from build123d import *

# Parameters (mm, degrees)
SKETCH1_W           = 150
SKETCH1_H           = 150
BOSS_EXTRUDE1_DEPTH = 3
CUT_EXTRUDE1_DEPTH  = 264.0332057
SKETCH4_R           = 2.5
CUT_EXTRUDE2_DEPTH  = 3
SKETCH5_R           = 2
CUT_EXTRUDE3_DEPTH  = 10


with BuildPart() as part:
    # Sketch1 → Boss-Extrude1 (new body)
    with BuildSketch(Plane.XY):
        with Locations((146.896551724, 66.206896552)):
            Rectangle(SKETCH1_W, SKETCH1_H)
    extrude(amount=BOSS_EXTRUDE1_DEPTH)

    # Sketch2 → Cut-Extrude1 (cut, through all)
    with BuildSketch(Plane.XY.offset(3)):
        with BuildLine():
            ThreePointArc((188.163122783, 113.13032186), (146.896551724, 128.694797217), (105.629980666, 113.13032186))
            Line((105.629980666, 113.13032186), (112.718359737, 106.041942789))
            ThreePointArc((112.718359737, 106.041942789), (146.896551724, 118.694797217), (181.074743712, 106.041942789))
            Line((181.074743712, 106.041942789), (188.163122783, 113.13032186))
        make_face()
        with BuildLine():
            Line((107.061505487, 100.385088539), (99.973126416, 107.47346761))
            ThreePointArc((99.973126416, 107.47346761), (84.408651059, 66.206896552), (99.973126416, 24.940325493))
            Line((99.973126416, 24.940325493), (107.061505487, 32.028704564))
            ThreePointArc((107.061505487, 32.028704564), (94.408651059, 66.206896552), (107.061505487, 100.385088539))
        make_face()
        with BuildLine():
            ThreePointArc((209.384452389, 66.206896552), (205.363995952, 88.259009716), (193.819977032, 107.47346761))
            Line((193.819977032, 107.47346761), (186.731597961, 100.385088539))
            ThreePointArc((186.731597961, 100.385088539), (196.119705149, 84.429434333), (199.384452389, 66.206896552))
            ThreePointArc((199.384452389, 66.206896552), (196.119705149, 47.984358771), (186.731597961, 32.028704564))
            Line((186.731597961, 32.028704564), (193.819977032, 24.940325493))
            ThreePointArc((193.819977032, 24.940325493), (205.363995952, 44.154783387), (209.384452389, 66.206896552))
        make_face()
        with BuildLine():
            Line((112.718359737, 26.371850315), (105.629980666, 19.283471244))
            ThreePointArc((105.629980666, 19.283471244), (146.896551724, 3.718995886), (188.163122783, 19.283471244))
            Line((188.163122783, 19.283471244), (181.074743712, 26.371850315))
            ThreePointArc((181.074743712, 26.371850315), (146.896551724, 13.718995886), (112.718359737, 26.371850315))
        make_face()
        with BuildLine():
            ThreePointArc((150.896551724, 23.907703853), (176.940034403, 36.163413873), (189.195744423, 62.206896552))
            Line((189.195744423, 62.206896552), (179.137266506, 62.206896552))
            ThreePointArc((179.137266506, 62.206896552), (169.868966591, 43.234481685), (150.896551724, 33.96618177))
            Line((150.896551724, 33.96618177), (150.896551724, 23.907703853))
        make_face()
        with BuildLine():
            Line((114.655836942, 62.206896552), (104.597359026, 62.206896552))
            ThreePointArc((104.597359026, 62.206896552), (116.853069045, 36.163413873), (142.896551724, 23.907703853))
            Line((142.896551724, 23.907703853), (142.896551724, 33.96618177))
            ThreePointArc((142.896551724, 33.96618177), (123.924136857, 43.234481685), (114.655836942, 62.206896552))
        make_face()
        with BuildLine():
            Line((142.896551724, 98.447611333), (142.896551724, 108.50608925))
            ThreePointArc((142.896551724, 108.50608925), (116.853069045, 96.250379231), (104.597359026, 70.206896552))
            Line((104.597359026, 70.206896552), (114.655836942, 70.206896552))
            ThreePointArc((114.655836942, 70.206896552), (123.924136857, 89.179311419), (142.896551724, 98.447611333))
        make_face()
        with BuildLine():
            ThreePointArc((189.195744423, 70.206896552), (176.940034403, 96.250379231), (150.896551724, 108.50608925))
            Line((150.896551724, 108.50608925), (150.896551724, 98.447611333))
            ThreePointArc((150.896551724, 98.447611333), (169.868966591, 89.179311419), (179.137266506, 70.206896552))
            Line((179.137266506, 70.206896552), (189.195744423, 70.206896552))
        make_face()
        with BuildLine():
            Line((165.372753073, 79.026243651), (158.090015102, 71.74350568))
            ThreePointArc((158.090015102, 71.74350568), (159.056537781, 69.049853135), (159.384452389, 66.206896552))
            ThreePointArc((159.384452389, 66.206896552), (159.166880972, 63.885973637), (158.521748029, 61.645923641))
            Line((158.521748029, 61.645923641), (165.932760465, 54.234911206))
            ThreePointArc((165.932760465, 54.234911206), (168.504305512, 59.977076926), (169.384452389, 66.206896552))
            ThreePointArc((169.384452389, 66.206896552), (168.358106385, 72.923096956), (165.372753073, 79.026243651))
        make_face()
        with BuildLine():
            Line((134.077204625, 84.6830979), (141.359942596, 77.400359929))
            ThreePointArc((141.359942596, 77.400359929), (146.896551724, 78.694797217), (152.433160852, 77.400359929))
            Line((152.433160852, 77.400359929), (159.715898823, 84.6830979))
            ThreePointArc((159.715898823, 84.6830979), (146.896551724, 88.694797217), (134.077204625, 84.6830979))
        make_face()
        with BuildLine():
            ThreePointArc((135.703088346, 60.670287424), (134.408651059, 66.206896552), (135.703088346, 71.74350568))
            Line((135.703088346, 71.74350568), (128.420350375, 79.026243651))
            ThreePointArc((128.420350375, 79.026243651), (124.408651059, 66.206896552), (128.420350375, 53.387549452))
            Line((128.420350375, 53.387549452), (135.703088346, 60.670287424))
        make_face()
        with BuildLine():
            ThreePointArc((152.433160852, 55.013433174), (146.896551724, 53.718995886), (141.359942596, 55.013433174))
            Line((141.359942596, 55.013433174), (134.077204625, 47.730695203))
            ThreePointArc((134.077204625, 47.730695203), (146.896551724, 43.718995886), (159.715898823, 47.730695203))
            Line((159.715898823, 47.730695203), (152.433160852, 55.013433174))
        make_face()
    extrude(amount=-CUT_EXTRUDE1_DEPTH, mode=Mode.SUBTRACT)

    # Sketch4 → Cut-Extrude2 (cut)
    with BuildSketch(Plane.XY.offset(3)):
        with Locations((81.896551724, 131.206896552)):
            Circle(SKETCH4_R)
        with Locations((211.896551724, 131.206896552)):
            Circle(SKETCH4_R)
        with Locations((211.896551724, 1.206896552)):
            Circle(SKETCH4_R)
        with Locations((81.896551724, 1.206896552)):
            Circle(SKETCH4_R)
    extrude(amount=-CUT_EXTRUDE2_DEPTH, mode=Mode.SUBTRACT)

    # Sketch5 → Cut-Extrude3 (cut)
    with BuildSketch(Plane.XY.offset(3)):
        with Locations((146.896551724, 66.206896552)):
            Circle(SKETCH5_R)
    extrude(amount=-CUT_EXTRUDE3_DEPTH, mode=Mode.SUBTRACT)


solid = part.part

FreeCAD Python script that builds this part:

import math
import FreeCAD as App
import Part
import Sketcher


def add_polygon(sketch, points):
    """Adds a closed chain of lines whose ends are joined by coincident constraints."""
    first, n = sketch.GeometryCount, len(points)
    for a, b in zip(points, points[1:] + points[:1]):
        sketch.addGeometry(Part.LineSegment(App.Vector(*a, 0), App.Vector(*b, 0)), False)
    for i in range(n):
        sketch.addConstraint(Sketcher.Constraint("Coincident", first + i, 2, first + (i + 1) % n, 1))

doc = App.newDocument("Part")
body = doc.addObject("PartDesign::Body", "Body")

# Sketch on XY plane
sketch1 = doc.addObject("Sketcher::SketchObject", "Sketch")
body.addObject(sketch1)
sketch1.AttachmentSupport = (doc.XY_Plane, [""])
sketch1.MapMode = "FlatFace"
add_polygon(sketch1, [(72, 141), (72, -9), (222, -9), (222, 141)])  # lines 0-3
sketch1.addConstraint([
    Sketcher.Constraint("Vertical", 0),
    Sketcher.Constraint("Horizontal", 1),
    Sketcher.Constraint("Vertical", 2),
    Sketcher.Constraint("Horizontal", 3),
    Sketcher.Constraint("Equal", 3, 0),
    Sketcher.Constraint("DistanceX", 1, 1, 1, 2, 150.0),
    Sketcher.Constraint("DistanceX", -1, 1, 0, 2, 71.896552),
    Sketcher.Constraint("DistanceY", 0, 2, -1, 1, 8.793103),
])
pad1 = doc.addObject("PartDesign::Pad", "Pad")
body.addObject(pad1)
pad1.Profile = sketch1
pad1.Length = 3

# Sketch on XY plane
sketch2 = doc.addObject("Sketcher::SketchObject", "Sketch001")
body.addObject(sketch2)
sketch2.AttachmentSupport = (doc.XY_Plane, [""])
sketch2.MapMode = "FlatFace"
sketch2.AttachmentOffset = App.Placement(App.Vector(0, 0, 3), App.Rotation())
sketch2.addGeometry([
    Part.ArcOfCircle(Part.Circle(App.Vector(146.896552, 66.206897, 0), App.Vector(0, 0, 1), 62.487901), math.radians(48.670149), math.radians(131.329851)),  # 0
    Part.LineSegment(App.Vector(105.629981, 113.130322, 0), App.Vector(112.71836, 106.041943, 0)),  # 1
    Part.ArcOfCircle(Part.Circle(App.Vector(146.896552, 66.206897, 0), App.Vector(0, 0, 1), 52.487901), math.radians(49.370637), math.radians(130.629363)),  # 2
    Part.LineSegment(App.Vector(181.074744, 106.041943, 0), App.Vector(188.163123, 113.130322, 0)),  # 3
    Part.LineSegment(App.Vector(107.061505, 100.385089, 0), App.Vector(99.973126, 107.473468, 0)),  # 4
    Part.ArcOfCircle(Part.Circle(App.Vector(146.896552, 66.206897, 0), App.Vector(0, 0, 1), 62.487901), math.radians(138.670149), math.radians(221.329851)),  # 5
    Part.LineSegment(App.Vector(99.973126, 24.940325, 0), App.Vector(107.061505, 32.028705, 0)),  # 6
    Part.ArcOfCircle(Part.Circle(App.Vector(146.896552, 66.206897, 0), App.Vector(0, 0, 1), 52.487901), math.radians(139.370637), math.radians(220.629363)),  # 7
    Part.ArcOfCircle(Part.Circle(App.Vector(146.896552, 66.206897, 0), App.Vector(0, 0, 1), 62.487901), math.radians(0), math.radians(41.329851)),  # 8
    Part.LineSegment(App.Vector(193.819977, 107.473468, 0), App.Vector(186.731598, 100.385089, 0)),  # 9
    Part.ArcOfCircle(Part.Circle(App.Vector(146.896552, 66.206897, 0), App.Vector(0, 0, 1), 52.487901), math.radians(0), math.radians(40.629363)),  # 10
    Part.ArcOfCircle(Part.Circle(App.Vector(146.896552, 66.206897, 0), App.Vector(0, 0, 1), 52.487901), math.radians(-40.629363), math.radians(0)),  # 11
    Part.LineSegment(App.Vector(186.731598, 32.028705, 0), App.Vector(193.819977, 24.940325, 0)),  # 12
    Part.ArcOfCircle(Part.Circle(App.Vector(146.896552, 66.206897, 0), App.Vector(0, 0, 1), 62.487901), math.radians(-41.329851), math.radians(0)),  # 13
    Part.LineSegment(App.Vector(112.71836, 26.37185, 0), App.Vector(105.629981, 19.283471, 0)),  # 14
    Part.ArcOfCircle(Part.Circle(App.Vector(146.896552, 66.206897, 0), App.Vector(0, 0, 1), 62.487901), math.radians(-131.329851), math.radians(-48.670149)),  # 15
    Part.LineSegment(App.Vector(188.163123, 19.283471, 0), App.Vector(181.074744, 26.37185, 0)),  # 16
    Part.ArcOfCircle(Part.Circle(App.Vector(146.896552, 66.206897, 0), App.Vector(0, 0, 1), 52.487901), math.radians(-130.629363), math.radians(-49.370637)),  # 17
    Part.ArcOfCircle(Part.Circle(App.Vector(146.896552, 66.206897, 0), App.Vector(0, 0, 1), 42.487901), math.radians(-84.59792), math.radians(-5.40208)),  # 18
    Part.LineSegment(App.Vector(189.195744, 62.206897, 0), App.Vector(179.137267, 62.206897, 0)),  # 19
    Part.ArcOfCircle(Part.Circle(App.Vector(146.896552, 66.206897, 0), App.Vector(0, 0, 1), 32.487901), math.radians(-82.92764), math.radians(-7.07236)),  # 20
    Part.LineSegment(App.Vector(150.896552, 33.966182, 0), App.Vector(150.896552, 23.907704, 0)),  # 21
    Part.LineSegment(App.Vector(114.655837, 62.206897, 0), App.Vector(104.597359, 62.206897, 0)),  # 22
    Part.ArcOfCircle(Part.Circle(App.Vector(146.896552, 66.206897, 0), App.Vector(0, 0, 1), 42.487901), math.radians(-174.59792), math.radians(-95.40208)),  # 23
    Part.LineSegment(App.Vector(142.896552, 23.907704, 0), App.Vector(142.896552, 33.966182, 0)),  # 24
    Part.ArcOfCircle(Part.Circle(App.Vector(146.896552, 66.206897, 0), App.Vector(0, 0, 1), 32.487901), math.radians(-172.92764), math.radians(-97.07236)),  # 25
    Part.LineSegment(App.Vector(142.896552, 98.447611, 0), App.Vector(142.896552, 108.506089, 0)),  # 26
    Part.ArcOfCircle(Part.Circle(App.Vector(146.896552, 66.206897, 0), App.Vector(0, 0, 1), 42.487901), math.radians(95.40208), math.radians(174.59792)),  # 27
    Part.LineSegment(App.Vector(104.597359, 70.206897, 0), App.Vector(114.655837, 70.206897, 0)),  # 28
    Part.ArcOfCircle(Part.Circle(App.Vector(146.896552, 66.206897, 0), App.Vector(0, 0, 1), 32.487901), math.radians(97.07236), math.radians(172.92764)),  # 29
    Part.ArcOfCircle(Part.Circle(App.Vector(146.896552, 66.206897, 0), App.Vector(0, 0, 1), 42.487901), math.radians(5.40208), math.radians(84.59792)),  # 30
    Part.LineSegment(App.Vector(150.896552, 108.506089, 0), App.Vector(150.896552, 98.447611, 0)),  # 31
    Part.ArcOfCircle(Part.Circle(App.Vector(146.896552, 66.206897, 0), App.Vector(0, 0, 1), 32.487901), math.radians(7.07236), math.radians(82.92764)),  # 32
    Part.LineSegment(App.Vector(179.137267, 70.206897, 0), App.Vector(189.195744, 70.206897, 0)),  # 33
    Part.LineSegment(App.Vector(165.372753, 79.026244, 0), App.Vector(158.090015, 71.743506, 0)),  # 34
    Part.ArcOfCircle(Part.Circle(App.Vector(146.896552, 66.206897, 0), App.Vector(0, 0, 1), 12.487901), math.radians(0), math.radians(26.318324)),  # 35
    Part.ArcOfCircle(Part.Circle(App.Vector(146.896552, 66.206897, 0), App.Vector(0, 0, 1), 12.487901), math.radians(-21.421822), math.radians(0)),  # 36
    Part.LineSegment(App.Vector(158.521748, 61.645924, 0), App.Vector(165.93276, 54.234911, 0)),  # 37
    Part.ArcOfCircle(Part.Circle(App.Vector(146.896552, 66.206897, 0), App.Vector(0, 0, 1), 22.487901), math.radians(-32.166032), math.radians(0)),  # 38
    Part.ArcOfCircle(Part.Circle(App.Vector(146.896552, 66.206897, 0), App.Vector(0, 0, 1), 22.487901), math.radians(0), math.radians(34.754083)),  # 39
    Part.LineSegment(App.Vector(134.077205, 84.683098, 0), App.Vector(141.359943, 77.40036, 0)),  # 40
    Part.ArcOfCircle(Part.Circle(App.Vector(146.896552, 66.206897, 0), App.Vector(0, 0, 1), 12.487901), math.radians(63.681676), math.radians(116.318324)),  # 41
    Part.LineSegment(App.Vector(152.433161, 77.40036, 0), App.Vector(159.715899, 84.683098, 0)),  # 42
    Part.ArcOfCircle(Part.Circle(App.Vector(146.896552, 66.206897, 0), App.Vector(0, 0, 1), 22.487901), math.radians(55.245917), math.radians(124.754083)),  # 43
    Part.ArcOfCircle(Part.Circle(App.Vector(146.896552, 66.206897, 0), App.Vector(0, 0, 1), 12.487901), math.radians(153.681676), math.radians(206.318324)),  # 44
    Part.LineSegment(App.Vector(135.703088, 71.743506, 0), App.Vector(128.42035, 79.026244, 0)),  # 45
    Part.ArcOfCircle(Part.Circle(App.Vector(146.896552, 66.206897, 0), App.Vector(0, 0, 1), 22.487901), math.radians(145.245917), math.radians(214.754083)),  # 46
    Part.LineSegment(App.Vector(128.42035, 53.387549, 0), App.Vector(135.703088, 60.670287, 0)),  # 47
    Part.ArcOfCircle(Part.Circle(App.Vector(146.896552, 66.206897, 0), App.Vector(0, 0, 1), 12.487901), math.radians(-116.318324), math.radians(-63.681676)),  # 48
    Part.LineSegment(App.Vector(141.359943, 55.013433, 0), App.Vector(134.077205, 47.730695, 0)),  # 49
    Part.ArcOfCircle(Part.Circle(App.Vector(146.896552, 66.206897, 0), App.Vector(0, 0, 1), 22.487901), math.radians(-124.754083), math.radians(-55.245917)),  # 50
    Part.LineSegment(App.Vector(159.715899, 47.730695, 0), App.Vector(152.433161, 55.013433, 0)),  # 51
], False)
sketch2.addConstraint([
    Sketcher.Constraint("Coincident", 0, 2, 1, 1),
    Sketcher.Constraint("Coincident", 1, 2, 2, 2),
    Sketcher.Constraint("Coincident", 2, 1, 3, 1),
    Sketcher.Constraint("Coincident", 3, 2, 0, 1),
    Sketcher.Constraint("Coincident", 4, 2, 5, 1),
    Sketcher.Constraint("Coincident", 5, 2, 6, 1),
    Sketcher.Constraint("Coincident", 6, 2, 7, 2),
    Sketcher.Constraint("Coincident", 7, 1, 4, 1),
    Sketcher.Constraint("Coincident", 8, 2, 9, 1),
    Sketcher.Constraint("Coincident", 9, 2, 10, 2),
    Sketcher.Constraint("Coincident", 10, 1, 11, 2),
    Sketcher.Constraint("Coincident", 11, 1, 12, 1),
    Sketcher.Constraint("Coincident", 12, 2, 13, 1),
    Sketcher.Constraint("Coincident", 13, 2, 8, 1),
    Sketcher.Constraint("Coincident", 14, 2, 15, 1),
    Sketcher.Constraint("Coincident", 15, 2, 16, 1),
    Sketcher.Constraint("Coincident", 16, 2, 17, 2),
    Sketcher.Constraint("Coincident", 17, 1, 14, 1),
    Sketcher.Constraint("Coincident", 18, 2, 19, 1),
    Sketcher.Constraint("Coincident", 19, 2, 20, 2),
    Sketcher.Constraint("Coincident", 20, 1, 21, 1),
    Sketcher.Constraint("Coincident", 21, 2, 18, 1),
    Sketcher.Constraint("Coincident", 22, 2, 23, 1),
    Sketcher.Constraint("Coincident", 23, 2, 24, 1),
    Sketcher.Constraint("Coincident", 24, 2, 25, 2),
    Sketcher.Constraint("Coincident", 25, 1, 22, 1),
    Sketcher.Constraint("Coincident", 26, 2, 27, 1),
    Sketcher.Constraint("Coincident", 27, 2, 28, 1),
    Sketcher.Constraint("Coincident", 28, 2, 29, 2),
    Sketcher.Constraint("Coincident", 29, 1, 26, 1),
    Sketcher.Constraint("Coincident", 30, 2, 31, 1),
    Sketcher.Constraint("Coincident", 31, 2, 32, 2),
    Sketcher.Constraint("Coincident", 32, 1, 33, 1),
    Sketcher.Constraint("Coincident", 33, 2, 30, 1),
    Sketcher.Constraint("Coincident", 34, 2, 35, 2),
    Sketcher.Constraint("Coincident", 35, 1, 36, 2),
    Sketcher.Constraint("Coincident", 36, 1, 37, 1),
    Sketcher.Constraint("Coincident", 37, 2, 38, 1),
    Sketcher.Constraint("Coincident", 38, 2, 39, 1),
    Sketcher.Constraint("Coincident", 39, 2, 34, 1),
    Sketcher.Constraint("Coincident", 40, 2, 41, 2),
    Sketcher.Constraint("Coincident", 41, 1, 42, 1),
    Sketcher.Constraint("Coincident", 42, 2, 43, 1),
    Sketcher.Constraint("Coincident", 43, 2, 40, 1),
    Sketcher.Constraint("Coincident", 44, 1, 45, 1),
    Sketcher.Constraint("Coincident", 45, 2, 46, 1),
    Sketcher.Constraint("Coincident", 46, 2, 47, 1),
    Sketcher.Constraint("Coincident", 47, 2, 44, 2),
    Sketcher.Constraint("Coincident", 48, 1, 49, 1),
    Sketcher.Constraint("Coincident", 49, 2, 50, 1),
    Sketcher.Constraint("Coincident", 50, 2, 51, 1),
    Sketcher.Constraint("Coincident", 51, 2, 48, 2),
    Sketcher.Constraint("Horizontal", 19),
    Sketcher.Constraint("Vertical", 21),
    Sketcher.Constraint("Horizontal", 22),
    Sketcher.Constraint("Vertical", 24),
    Sketcher.Constraint("Vertical", 26),
    Sketcher.Constraint("Horizontal", 28),
    Sketcher.Constraint("Vertical", 31),
    Sketcher.Constraint("Horizontal", 33),
    Sketcher.Constraint("Coincident", 2, 3, 0, 3),
    Sketcher.Constraint("Coincident", 5, 3, 0, 3),
    Sketcher.Constraint("Coincident", 7, 3, 0, 3),
    Sketcher.Constraint("Coincident", 8, 3, 0, 3),
    Sketcher.Constraint("Coincident", 10, 3, 0, 3),
    Sketcher.Constraint("Coincident", 11, 3, 0, 3),
    Sketcher.Constraint("Coincident", 13, 3, 0, 3),
    Sketcher.Constraint("Coincident", 15, 3, 0, 3),
    Sketcher.Constraint("Coincident", 17, 3, 0, 3),
    Sketcher.Constraint("Coincident", 18, 3, 0, 3),
    Sketcher.Constraint("Coincident", 20, 3, 0, 3),
    Sketcher.Constraint("Coincident", 23, 3, 0, 3),
    Sketcher.Constraint("Coincident", 25, 3, 0, 3),
    Sketcher.Constraint("Coincident", 27, 3, 0, 3),
    Sketcher.Constraint("Coincident", 29, 3, 0, 3),
    Sketcher.Constraint("Coincident", 30, 3, 0, 3),
    Sketcher.Constraint("Coincident", 32, 3, 0, 3),
    Sketcher.Constraint("Coincident", 35, 3, 0, 3),
    Sketcher.Constraint("Coincident", 36, 3, 0, 3),
    Sketcher.Constraint("Coincident", 38, 3, 0, 3),
    Sketcher.Constraint("Coincident", 39, 3, 0, 3),
    Sketcher.Constraint("Coincident", 41, 3, 0, 3),
    Sketcher.Constraint("Coincident", 43, 3, 0, 3),
    Sketcher.Constraint("Coincident", 44, 3, 0, 3),
    Sketcher.Constraint("Coincident", 46, 3, 0, 3),
    Sketcher.Constraint("Coincident", 48, 3, 0, 3),
    Sketcher.Constraint("Coincident", 50, 3, 0, 3),
    Sketcher.Constraint("Radius", 0, 62.487901),
    Sketcher.Constraint("Radius", 2, 52.487901),
    Sketcher.Constraint("Radius", 5, 62.487901),
    Sketcher.Constraint("Radius", 7, 52.487901),
    Sketcher.Constraint("Radius", 8, 62.487901),
    Sketcher.Constraint("Radius", 10, 52.487901),
    Sketcher.Constraint("Radius", 15, 62.487901),
    Sketcher.Constraint("Radius", 17, 52.487901),
    Sketcher.Constraint("Radius", 18, 42.487901),
    Sketcher.Constraint("Radius", 20, 32.487901),
    Sketcher.Constraint("Radius", 23, 42.487901),
    Sketcher.Constraint("Radius", 25, 32.487901),
    Sketcher.Constraint("Radius", 27, 42.487901),
    Sketcher.Constraint("Radius", 29, 32.487901),
    Sketcher.Constraint("Radius", 30, 42.487901),
    Sketcher.Constraint("Radius", 32, 32.487901),
    Sketcher.Constraint("Radius", 35, 12.487901),
    Sketcher.Constraint("Radius", 38, 22.487901),
    Sketcher.Constraint("Radius", 41, 12.487901),
    Sketcher.Constraint("Radius", 43, 22.487901),
    Sketcher.Constraint("Radius", 44, 12.487901),
    Sketcher.Constraint("Radius", 46, 22.487901),
    Sketcher.Constraint("Radius", 48, 12.487901),
    Sketcher.Constraint("Radius", 50, 22.487901),
    Sketcher.Constraint("DistanceX", -1, 1, 42, 2, 159.715899),
    Sketcher.Constraint("DistanceX", -1, 1, 50, 2, 159.715899),
    Sketcher.Constraint("Distance", 1, 10.024482),
    Sketcher.Constraint("Distance", 3, 10.024482),
    Sketcher.Constraint("Distance", 4, 10.024482),
    Sketcher.Constraint("Distance", 6, 10.024482),
    Sketcher.Constraint("Distance", 9, 10.024482),
    Sketcher.Constraint("Distance", 12, 10.024482),
    Sketcher.Constraint("Distance", 14, 10.024482),
    Sketcher.Constraint("Distance", 16, 10.024482),
    Sketcher.Constraint("DistanceX", 19, 2, 19, 1, 10.058478),
    Sketcher.Constraint("DistanceX", 22, 2, 22, 1, 10.058478),
    Sketcher.Constraint("DistanceX", 28, 1, 28, 2, 10.058478),
    Sketcher.Constraint("DistanceX", 33, 1, 33, 2, 10.058478),
    Sketcher.Constraint("DistanceY", 21, 2, 21, 1, 10.058478),
    Sketcher.Constraint("DistanceY", 24, 1, 24, 2, 10.058478),
    Sketcher.Constraint("DistanceY", 26, 1, 26, 2, 10.058478),
    Sketcher.Constraint("DistanceY", 31, 2, 31, 1, 10.058478),
    Sketcher.Constraint("DistanceX", -1, 1, 0, 3, 146.896552),
    Sketcher.Constraint("DistanceX", -1, 1, 0, 2, 105.629981),
    Sketcher.Constraint("DistanceY", -1, 1, 0, 2, 113.130322),
    Sketcher.Constraint("DistanceY", -1, 1, 3, 2, 113.130322),
    Sketcher.Constraint("DistanceY", -1, 1, 7, 1, 100.385089),
    Sketcher.Constraint("DistanceY", -1, 1, 9, 2, 100.385089),
    Sketcher.Constraint("DistanceX", -1, 1, 14, 2, 105.629981),
    Sketcher.Constraint("DistanceY", -1, 1, 15, 2, 19.283471),
    Sketcher.Constraint("DistanceX", -1, 1, 36, 1, 158.521748),
    Sketcher.Constraint("DistanceX", -1, 1, 37, 2, 165.93276),
    Sketcher.Constraint("DistanceY", -1, 1, 40, 2, 77.40036),
    Sketcher.Constraint("DistanceX", -1, 1, 41, 1, 152.433161),
    Sketcher.Constraint("DistanceX", -1, 1, 44, 1, 135.703088),
    Sketcher.Constraint("DistanceX", -1, 1, 45, 2, 128.42035),
    Sketcher.Constraint("DistanceX", -1, 1, 46, 2, 128.42035),
    Sketcher.Constraint("DistanceX", -1, 1, 47, 2, 135.703088),
    Sketcher.Constraint("DistanceX", -1, 1, 51, 2, 152.433161),
    Sketcher.Constraint("Distance", 34, 10.299347),
    Sketcher.Constraint("Distance", 40, 10.299347),
    Sketcher.Constraint("Distance", 49, 10.299347),
    Sketcher.Constraint("DistanceX", -1, 1, 5, 2, 99.973126),
    Sketcher.Constraint("DistanceY", -1, 1, 10, 1, 66.206897),
    Sketcher.Constraint("DistanceX", -1, 1, 11, 1, 186.731598),
    Sketcher.Constraint("DistanceY", -1, 1, 13, 2, 66.206897),
    Sketcher.Constraint("DistanceX", -1, 1, 34, 2, 158.090015),
    Sketcher.Constraint("DistanceY", -1, 1, 35, 1, 66.206897),
    Sketcher.Constraint("DistanceY", -1, 1, 38, 2, 66.206897),
    Sketcher.Constraint("DistanceX", -1, 1, 48, 1, 141.359943),
])
pocket1 = doc.addObject("PartDesign::Pocket", "Pocket")
body.addObject(pocket1)
pocket1.Profile = sketch2
pocket1.Type = "ThroughAll"

# Sketch on XY plane
sketch3 = doc.addObject("Sketcher::SketchObject", "Sketch002")
body.addObject(sketch3)
sketch3.AttachmentSupport = (doc.XY_Plane, [""])
sketch3.MapMode = "FlatFace"
sketch3.AttachmentOffset = App.Placement(App.Vector(0, 0, 3), App.Rotation())
sketch3.addGeometry([
    Part.Circle(App.Vector(81.9, 131.2, 0), App.Vector(0, 0, 1), 2.5),
    Part.Circle(App.Vector(211.9, 131.2, 0), App.Vector(0, 0, 1), 2.5),
    Part.Circle(App.Vector(211.9, 1.2, 0), App.Vector(0, 0, 1), 2.5),
    Part.Circle(App.Vector(81.9, 1.2, 0), App.Vector(0, 0, 1), 2.5),
], False)
sketch3.addConstraint([
    Sketcher.Constraint("Equal", 0, 1),
    Sketcher.Constraint("Equal", 1, 2),
    Sketcher.Constraint("Equal", 2, 3),
    Sketcher.Constraint("Horizontal", 0, 3, 1, 3),
    Sketcher.Constraint("Horizontal", 2, 3, 3, 3),
    Sketcher.Constraint("Vertical", 1, 3, 2, 3),
    Sketcher.Constraint("Vertical", 0, 3, 3, 3),
    Sketcher.Constraint("Diameter", 0, 5.0),
    Sketcher.Constraint("DistanceX", 0, 3, 1, 3, 130.0),
    Sketcher.Constraint("DistanceY", 2, 3, 1, 3, 130.0),
    Sketcher.Constraint("DistanceX", -1, 1, 0, 3, 81.896552),
    Sketcher.Constraint("DistanceY", -1, 1, 0, 3, 131.206897),
])
pocket2 = doc.addObject("PartDesign::Pocket", "Pocket001")
body.addObject(pocket2)
pocket2.Profile = sketch3
pocket2.Length = 3

# Sketch on XY plane
sketch4 = doc.addObject("Sketcher::SketchObject", "Sketch003")
body.addObject(sketch4)
sketch4.AttachmentSupport = (doc.XY_Plane, [""])
sketch4.MapMode = "FlatFace"
sketch4.AttachmentOffset = App.Placement(App.Vector(0, 0, 3), App.Rotation())
sketch4.addGeometry(Part.Circle(App.Vector(146.9, 66.2, 0), App.Vector(0, 0, 1), 2), False)
sketch4.addConstraint([
    Sketcher.Constraint("Diameter", 0, 4.0),
    Sketcher.Constraint("DistanceX", -1, 1, 0, 3, 146.896552),
    Sketcher.Constraint("DistanceY", -1, 1, 0, 3, 66.206897),
])
pocket3 = doc.addObject("PartDesign::Pocket", "Pocket002")
body.addObject(pocket3)
pocket3.Profile = sketch4
pocket3.Length = 10

doc.recompute()
